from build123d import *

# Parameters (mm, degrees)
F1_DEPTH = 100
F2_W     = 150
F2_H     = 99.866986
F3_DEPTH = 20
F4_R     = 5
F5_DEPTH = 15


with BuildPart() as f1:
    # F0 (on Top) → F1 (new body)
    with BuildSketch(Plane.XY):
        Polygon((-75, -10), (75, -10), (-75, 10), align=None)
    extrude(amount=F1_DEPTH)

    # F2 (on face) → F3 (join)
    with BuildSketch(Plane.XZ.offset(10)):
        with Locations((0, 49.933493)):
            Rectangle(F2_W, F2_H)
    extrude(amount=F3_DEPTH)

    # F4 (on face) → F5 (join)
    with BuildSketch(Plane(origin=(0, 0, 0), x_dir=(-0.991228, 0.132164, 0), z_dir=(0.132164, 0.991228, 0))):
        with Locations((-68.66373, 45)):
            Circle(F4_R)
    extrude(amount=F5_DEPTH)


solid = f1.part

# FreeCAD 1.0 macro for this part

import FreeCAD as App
import Part
import Sketcher

doc = App.newDocument("Part")
body = doc.addObject("PartDesign::Body", "Body")

# Sketch on XY plane
sketch1 = body.newObject("Sketcher::SketchObject", "Sketch")
sketch1.AttachmentSupport = (doc.getObject("XY_Plane"), [""])
sketch1.MapMode = "FlatFace"
sketch1.addGeometry(Part.LineSegment(App.Vector(-75, -10, 0), App.Vector(75, -10, 0)), False)
sketch1.addGeometry(Part.LineSegment(App.Vector(75, -10, 0), App.Vector(-75, 10, 0)), False)
sketch1.addGeometry(Part.LineSegment(App.Vector(-75, 10, 0), App.Vector(-75, -10, 0)), False)
sketch1.addConstraint(Sketcher.Constraint("Coincident", 0, 2, 1, 1))
sketch1.addConstraint(Sketcher.Constraint("Coincident", 1, 2, 2, 1))
sketch1.addConstraint(Sketcher.Constraint("Coincident", 2, 2, 0, 1))
sketch1.addConstraint(Sketcher.Constraint("Horizontal", 0))
sketch1.addConstraint(Sketcher.Constraint("Vertical", 2))
sketch1.addConstraint(Sketcher.Constraint("Symmetric", 0, 2, 1, 2, -1, 1))
sketch1.addConstraint(Sketcher.Constraint("DistanceX", 0, 1, 0, 2, 150.0))
sketch1.addConstraint(Sketcher.Constraint("DistanceY", 2, 2, 2, 1, 20.0))
pad1 = body.newObject("PartDesign::Pad", "Pad")
pad1.Profile = sketch1
pad1.Length = 100

# Sketch on XZ plane
sketch2 = body.newObject("Sketcher::SketchObject", "Sketch001")
sketch2.AttachmentSupport = (doc.getObject("XZ_Plane"), [""])
sketch2.MapMode = "FlatFace"
sketch2.AttachmentOffset = App.Placement(App.Vector(0, 0, 10), App.Rotation())
sketch2.addGeometry(Part.LineSegment(App.Vector(-75, 100, 0), App.Vector(-75, 0, 0)), False)
sketch2.addGeometry(Part.LineSegment(App.Vector(-75, 0, 0), App.Vector(75, 0, 0)), False)
sketch2.addGeometry(Part.LineSegment(App.Vector(75, 0, 0), App.Vector(75, 100, 0)), False)
sketch2.addGeometry(Part.LineSegment(App.Vector(75, 100, 0), App.Vector(-75, 100, 0)), False)
sketch2.addConstraint(Sketcher.Constraint("Coincident", 0, 2, 1, 1))
sketch2.addConstraint(Sketcher.Constraint("Coincident", 1, 2, 2, 1))
sketch2.addConstraint(Sketcher.Constraint("Coincident", 2, 2, 3, 1))
sketch2.addConstraint(Sketcher.Constraint("Coincident", 3, 2, 0, 1))
sketch2.addConstraint(Sketcher.Constraint("Vertical", 0))
sketch2.addConstraint(Sketcher.Constraint("Horizontal", 1))
sketch2.addConstraint(Sketcher.Constraint("Vertical", 2))
sketch2.addConstraint(Sketcher.Constraint("Horizontal", 3))
sketch2.addConstraint(Sketcher.Constraint("Symmetric", 0, 2, 1, 2, -1, 1))
sketch2.addConstraint(Sketcher.Constraint("DistanceX", 1, 1, 1, 2, 150.0))
sketch2.addConstraint(Sketcher.Constraint("DistanceY", 0, 2, 0, 1, 99.866986))
pad2 = body.newObject("PartDesign::Pad", "Pad001")
pad2.Profile = sketch2
pad2.Length = 20

# Sketch on an angled plane
sketch3 = body.newObject("Sketcher::SketchObject", "Sketch002")
sketch3.Placement = App.Placement(App.Vector(0, 0, 0), App.Rotation(App.Vector(-0.991227866, 0.132163982, 0), App.Vector(0, 0, 1), App.Vector(0.132163982, 0.991227866, 0), "ZXY"))
sketch3.addGeometry(Part.Circle(App.Vector(-69, 45, 0), App.Vector(0, 0, 1), 5), False)
sketch3.addConstraint(Sketcher.Constraint("Diameter", 0, 10.0))
sketch3.addConstraint(Sketcher.Constraint("DistanceY", -1, 1, 0, 3, 45.0))
sketch3.addConstraint(Sketcher.Constraint("DistanceX", 0, 3, -1, 1, 68.66373))
pad3 = body.newObject("PartDesign::Pad", "Pad002")
pad3.Profile = sketch3
pad3.Length = 15

doc.recompute()
